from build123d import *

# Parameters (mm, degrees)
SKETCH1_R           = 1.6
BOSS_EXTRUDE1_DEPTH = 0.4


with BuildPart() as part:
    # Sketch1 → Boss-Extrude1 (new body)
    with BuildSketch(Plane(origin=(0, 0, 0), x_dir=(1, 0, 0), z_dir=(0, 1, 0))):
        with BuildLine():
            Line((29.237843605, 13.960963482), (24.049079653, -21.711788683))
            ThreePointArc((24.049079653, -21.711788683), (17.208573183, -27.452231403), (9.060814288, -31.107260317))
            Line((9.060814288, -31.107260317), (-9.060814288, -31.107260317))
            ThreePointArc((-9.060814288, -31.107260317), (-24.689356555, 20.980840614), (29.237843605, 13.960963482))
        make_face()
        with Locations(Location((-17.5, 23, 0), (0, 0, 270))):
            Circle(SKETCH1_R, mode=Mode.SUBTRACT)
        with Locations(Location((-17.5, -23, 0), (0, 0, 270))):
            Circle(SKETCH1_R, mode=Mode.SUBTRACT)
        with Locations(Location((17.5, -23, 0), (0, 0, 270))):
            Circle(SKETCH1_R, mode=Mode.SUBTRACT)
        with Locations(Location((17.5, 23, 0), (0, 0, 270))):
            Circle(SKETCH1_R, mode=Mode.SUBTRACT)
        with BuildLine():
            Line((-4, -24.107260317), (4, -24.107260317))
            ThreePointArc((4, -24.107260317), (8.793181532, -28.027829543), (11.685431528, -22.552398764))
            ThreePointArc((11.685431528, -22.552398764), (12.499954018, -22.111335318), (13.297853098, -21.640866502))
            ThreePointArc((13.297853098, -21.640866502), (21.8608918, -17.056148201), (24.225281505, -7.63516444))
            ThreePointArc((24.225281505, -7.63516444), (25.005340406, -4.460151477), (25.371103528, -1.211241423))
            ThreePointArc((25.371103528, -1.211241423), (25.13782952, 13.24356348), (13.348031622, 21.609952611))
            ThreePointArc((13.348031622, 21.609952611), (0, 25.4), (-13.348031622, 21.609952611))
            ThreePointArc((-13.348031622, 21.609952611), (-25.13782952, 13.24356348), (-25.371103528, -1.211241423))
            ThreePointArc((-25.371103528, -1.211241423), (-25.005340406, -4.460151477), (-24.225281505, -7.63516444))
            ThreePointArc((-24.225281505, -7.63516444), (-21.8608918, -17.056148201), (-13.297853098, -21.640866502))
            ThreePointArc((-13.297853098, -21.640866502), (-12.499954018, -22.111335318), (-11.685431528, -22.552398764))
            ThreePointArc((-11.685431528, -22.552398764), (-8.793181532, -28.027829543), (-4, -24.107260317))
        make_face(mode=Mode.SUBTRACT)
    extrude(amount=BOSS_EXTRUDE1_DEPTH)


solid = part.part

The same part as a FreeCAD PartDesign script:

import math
import FreeCAD as App
import Part
import Sketcher

V = App.Vector
Q = App.Units.Quantity

doc = App.newDocument("Part")
body = doc.addObject("PartDesign::Body", "Body")

sketch1 = body.newObject("Sketcher::SketchObject", "Sketch")
sketch1.AttachmentSupport = (doc.getObject("XZ_Plane"), [""])
sketch1.MapMode = "FlatFace"
sketch1.addGeometry(Part.LineSegment(V(24, 21.7, 0), V(29.2, -14, 0)), False)
sketch1.addGeometry(Part.ArcOfCircle(Part.Circle(V(0, 0, 0), V(0, 0, 1), 32.4), math.radians(106), math.radians(334)), False)
sketch1.addGeometry(Part.LineSegment(V(-9.1, 31.1, 0), V(9.1, 31.1, 0)), False)
sketch1.addGeometry(Part.ArcOfCircle(Part.Circle(V(0, 0, 0), V(0, 0, 1), 32.4), math.radians(42), math.radians(74)), False)
sketch1.addGeometry(Part.Circle(V(17.5, 23, 0), V(0, 0, 1), 1.6), False)
sketch1.addGeometry(Part.Circle(V(-17.5, 23, 0), V(0, 0, 1), 1.6), False)
sketch1.addGeometry(Part.ArcOfCircle(Part.Circle(V(-8, 24.1, 0), V(0, 0, 1), 4), math.radians(0), math.radians(203)), False)
sketch1.addGeometry(Part.ArcOfCircle(Part.Circle(V(0, 0, 0), V(0, 0, 1), 25.4), math.radians(117.39), math.radians(121.57)), False)
sketch1.addGeometry(Part.ArcOfCircle(Part.Circle(V(-12.4, 9.7, 0), V(0, 0, 1), 12), math.radians(94), math.radians(190)), False)
sketch1.addGeometry(Part.ArcOfCircle(Part.Circle(V(0, 0, 0), V(0, 0, 1), 25.4), math.radians(162.51), math.radians(177.27)), False)
sketch1.addGeometry(Part.ArcOfCircle(Part.Circle(V(-11, -5.8, 0), V(0, 0, 1), 16), math.radians(154), math.radians(261)), False)
sketch1.addGeometry(Part.ArcOfCircle(Part.Circle(V(0, 0, 0), V(0, 0, 1), 25.4), math.radians(-122), math.radians(-58)), False)
sketch1.addGeometry(Part.ArcOfCircle(Part.Circle(V(11, -5.8, 0), V(0, 0, 1), 16), math.radians(-81), math.radians(26)), False)
sketch1.addGeometry(Part.ArcOfCircle(Part.Circle(V(0, 0, 0), V(0, 0, 1), 25.4), math.radians(2.73), math.radians(17.49)), False)
sketch1.addGeometry(Part.ArcOfCircle(Part.Circle(V(12.4, 9.7, 0), V(0, 0, 1), 12), math.radians(-10), math.radians(86)), False)
sketch1.addGeometry(Part.ArcOfCircle(Part.Circle(V(0, 0, 0), V(0, 0, 1), 25.4), math.radians(58.43), math.radians(62.61)), False)
sketch1.addGeometry(Part.ArcOfCircle(Part.Circle(V(8, 24.1, 0), V(0, 0, 1), 4), math.radians(-23), math.radians(180)), False)
sketch1.addGeometry(Part.LineSegment(V(4, 24.1, 0), V(-4, 24.1, 0)), False)
sketch1.addGeometry(Part.Circle(V(17.5, -23, 0), V(0, 0, 1), 1.6), False)
sketch1.addGeometry(Part.Circle(V(-17.5, -23, 0), V(0, 0, 1), 1.6), False)
sketch1.addConstraint(Sketcher.Constraint("Coincident", 0, 2, 1, 2))
sketch1.addConstraint(Sketcher.Constraint("Coincident", 1, 1, 2, 1))
sketch1.addConstraint(Sketcher.Constraint("Coincident", 2, 2, 3, 2))
sketch1.addConstraint(Sketcher.Constraint("Coincident", 3, 1, 0, 1))
sketch1.addConstraint(Sketcher.Constraint("Coincident", 6, 2, 7, 1))
sketch1.addConstraint(Sketcher.Constraint("Coincident", 7, 2, 8, 1))
sketch1.addConstraint(Sketcher.Constraint("Coincident", 8, 2, 9, 1))
sketch1.addConstraint(Sketcher.Constraint("Coincident", 9, 2, 10, 1))
sketch1.addConstraint(Sketcher.Constraint("Coincident", 10, 2, 11, 1))
sketch1.addConstraint(Sketcher.Constraint("Coincident", 11, 2, 12, 1))
sketch1.addConstraint(Sketcher.Constraint("Coincident", 12, 2, 13, 1))
sketch1.addConstraint(Sketcher.Constraint("Coincident", 13, 2, 14, 1))
sketch1.addConstraint(Sketcher.Constraint("Coincident", 14, 2, 15, 1))
sketch1.addConstraint(Sketcher.Constraint("Coincident", 15, 2, 16, 1))
sketch1.addConstraint(Sketcher.Constraint("Coincident", 16, 2, 17, 1))
sketch1.addConstraint(Sketcher.Constraint("Coincident", 17, 2, 6, 1))
sketch1.addConstraint(Sketcher.Constraint("Horizontal", 2))
sketch1.addConstraint(Sketcher.Constraint("Horizontal", 17))
sketch1.addConstraint(Sketcher.Constraint("Coincident", 1, 3, -1, 1))
sketch1.addConstraint(Sketcher.Constraint("Coincident", 3, 3, -1, 1))
sketch1.addConstraint(Sketcher.Constraint("Coincident", 7, 3, -1, 1))
sketch1.addConstraint(Sketcher.Constraint("Coincident", 9, 3, -1, 1))
sketch1.addConstraint(Sketcher.Constraint("Coincident", 11, 3, -1, 1))
sketch1.addConstraint(Sketcher.Constraint("Coincident", 13, 3, -1, 1))
sketch1.addConstraint(Sketcher.Constraint("Coincident", 15, 3, -1, 1))
sketch1.addConstraint(Sketcher.Constraint("Equal", 1, 3))
sketch1.addConstraint(Sketcher.Constraint("Equal", 4, 5))
sketch1.addConstraint(Sketcher.Constraint("Equal", 7, 9))
sketch1.addConstraint(Sketcher.Constraint("Equal", 9, 11))
sketch1.addConstraint(Sketcher.Constraint("Equal", 10, 12))
sketch1.addConstraint(Sketcher.Constraint("Equal", 11, 13))
sketch1.addConstraint(Sketcher.Constraint("Equal", 8, 14))
sketch1.addConstraint(Sketcher.Constraint("Equal", 13, 15))
sketch1.addConstraint(Sketcher.Constraint("Equal", 6, 16))
sketch1.addConstraint(Sketcher.Constraint("Equal", 5, 18))
sketch1.addConstraint(Sketcher.Constraint("Equal", 18, 19))
sketch1.addConstraint(Sketcher.Constraint("Symmetric", 5, 3, 18, 3, -1, 1))
sketch1.addConstraint(Sketcher.Constraint("Symmetric", 4, 3, 19, 3, -1, 1))
sketch1.addConstraint(Sketcher.Constraint("Symmetric", 4, 3, 5, 3, -2))
sketch1.addConstraint(Sketcher.Constraint("Symmetric", 10, 3, 12, 3, -2))
sketch1.addConstraint(Sketcher.Constraint("Symmetric", 8, 3, 14, 3, -2))
sketch1.addConstraint(Sketcher.Constraint("Symmetric", 6, 3, 16, 3, -2))
sketch1.addConstraint(Sketcher.Constraint("Horizontal", 6, 3, 16, 2))
sketch1.addConstraint(Sketcher.Constraint("Radius", 6, Q("4 mm")))
sketch1.addConstraint(Sketcher.Constraint("Radius", 8, Q("12 mm")))
sketch1.addConstraint(Sketcher.Constraint("Radius", 10, Q("16 mm")))
sketch1.addConstraint(Sketcher.Constraint("Diameter", 4, Q("3.2 mm")))
sketch1.addConstraint(Sketcher.Constraint("Radius", 1, Q("32.4 mm")))
sketch1.addConstraint(Sketcher.Constraint("Radius", 7, Q("25.4 mm")))
sketch1.addConstraint(Sketcher.Constraint("DistanceX", 17, 2, 17, 1, Q("8 mm")))
sketch1.addConstraint(Sketcher.Constraint("DistanceY", -1, 1, 4, 3, Q("23 mm")))
sketch1.addConstraint(Sketcher.Constraint("DistanceX", 5, 3, 4, 3, Q("35 mm")))
sketch1.addConstraint(Sketcher.Constraint("DistanceY", 6, 3, 1, 1, Q("7 mm")))
sketch1.addConstraint(Sketcher.Constraint("DistanceX", 2, 1, 2, 2, Q("18.121629 mm")))
sketch1.addConstraint(Sketcher.Constraint("DistanceX", 3, 1, 13, 2, Q("0.176202 mm")))
sketch1.addConstraint(Sketcher.Constraint("Distance", 0, Q("36.048142 mm")))
sketch1.addConstraint(Sketcher.Constraint("DistanceX", 8, 3, -1, 1, Q("12.399841 mm")))
sketch1.addConstraint(Sketcher.Constraint("DistanceX", -1, 1, 3, 1, Q("24.04908 mm")))
sketch1.addConstraint(Sketcher.Constraint("DistanceY", -1, 1, 9, 2, Q("1.211241 mm")))
sketch1.addConstraint(Sketcher.Constraint("DistanceX", 10, 2, -1, 1, Q("13.348032 mm")))
pad1 = body.newObject("PartDesign::Pad", "Pad")
pad1.Profile = sketch1
pad1.Length = 0.4
pad1.Reversed = True

doc.recompute()
